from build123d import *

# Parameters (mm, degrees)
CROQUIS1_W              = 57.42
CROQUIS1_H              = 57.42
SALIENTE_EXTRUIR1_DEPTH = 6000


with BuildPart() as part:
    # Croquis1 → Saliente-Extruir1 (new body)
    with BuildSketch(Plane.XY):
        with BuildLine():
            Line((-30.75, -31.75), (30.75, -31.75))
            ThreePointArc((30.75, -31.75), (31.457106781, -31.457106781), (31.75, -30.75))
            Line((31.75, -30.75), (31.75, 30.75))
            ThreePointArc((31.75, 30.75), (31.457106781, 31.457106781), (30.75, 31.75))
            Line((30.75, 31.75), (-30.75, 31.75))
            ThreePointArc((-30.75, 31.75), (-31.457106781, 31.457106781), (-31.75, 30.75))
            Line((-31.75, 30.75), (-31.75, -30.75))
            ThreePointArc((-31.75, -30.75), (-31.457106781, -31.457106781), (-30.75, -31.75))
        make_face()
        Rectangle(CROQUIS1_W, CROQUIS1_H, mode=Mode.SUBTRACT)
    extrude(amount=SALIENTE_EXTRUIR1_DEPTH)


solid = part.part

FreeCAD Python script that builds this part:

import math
import FreeCAD as App
import Part
import Sketcher
Q = App.Units.Quantity


def add_polygon(sketch, points):
    """Adds a closed chain of lines whose ends are joined by coincident constraints."""
    first, n = sketch.GeometryCount, len(points)
    for a, b in zip(points, points[1:] + points[:1]):
        sketch.addGeometry(Part.LineSegment(App.Vector(*a, 0), App.Vector(*b, 0)), False)
    for i in range(n):
        sketch.addConstraint(Sketcher.Constraint("Coincident", first + i, 2, first + (i + 1) % n, 1))

doc = App.newDocument("Part")
body = doc.addObject("PartDesign::Body", "Body")

sketch1 = doc.addObject("Sketcher::SketchObject", "Sketch")
body.addObject(sketch1)
sketch1.AttachmentSupport = (doc.XY_Plane, [""])
sketch1.MapMode = "FlatFace"
sketch1.addGeometry(Part.LineSegment(App.Vector(-30.75, -31.75, 0), App.Vector(30.75, -31.75, 0)), False)
sketch1.addGeometry(Part.ArcOfCircle(Part.Circle(App.Vector(30.75, -30.75, 0), App.Vector(0, 0, 1), 1), math.radians(-90), math.radians(0)), False)
sketch1.addGeometry(Part.LineSegment(App.Vector(31.75, -30.75, 0), App.Vector(31.75, 30.75, 0)), False)
sketch1.addGeometry(Part.ArcOfCircle(Part.Circle(App.Vector(30.75, 30.75, 0), App.Vector(0, 0, 1), 1), math.radians(0), math.radians(90)), False)
sketch1.addGeometry(Part.LineSegment(App.Vector(30.75, 31.75, 0), App.Vector(-30.75, 31.75, 0)), False)
sketch1.addGeometry(Part.ArcOfCircle(Part.Circle(App.Vector(-30.75, 30.75, 0), App.Vector(0, 0, 1), 1), math.radians(90), math.radians(180)), False)
sketch1.addGeometry(Part.LineSegment(App.Vector(-31.75, 30.75, 0), App.Vector(-31.75, -30.75, 0)), False)
sketch1.addGeometry(Part.ArcOfCircle(Part.Circle(App.Vector(-30.75, -30.75, 0), App.Vector(0, 0, 1), 1), math.radians(-180), math.radians(-90)), False)
add_polygon(sketch1, [(28.71, -28.71), (-28.71, -28.71), (-28.71, 28.71), (28.71, 28.71)])
sketch1.addConstraint(Sketcher.Constraint("Tangent", 0, 2, 1, 1))
sketch1.addConstraint(Sketcher.Constraint("Tangent", 1, 2, 2, 1))
sketch1.addConstraint(Sketcher.Constraint("Tangent", 2, 2, 3, 1))
sketch1.addConstraint(Sketcher.Constraint("Tangent", 3, 2, 4, 1))
sketch1.addConstraint(Sketcher.Constraint("Tangent", 4, 2, 5, 1))
sketch1.addConstraint(Sketcher.Constraint("Tangent", 5, 2, 6, 1))
sketch1.addConstraint(Sketcher.Constraint("Tangent", 6, 2, 7, 1))
sketch1.addConstraint(Sketcher.Constraint("Tangent", 7, 2, 0, 1))
sketch1.addConstraint(Sketcher.Constraint("Horizontal", 0))
sketch1.addConstraint(Sketcher.Constraint("Vertical", 2))
sketch1.addConstraint(Sketcher.Constraint("Horizontal", 4))
sketch1.addConstraint(Sketcher.Constraint("Vertical", 6))
sketch1.addConstraint(Sketcher.Constraint("Horizontal", 8))
sketch1.addConstraint(Sketcher.Constraint("Vertical", 9))
sketch1.addConstraint(Sketcher.Constraint("Horizontal", 10))
sketch1.addConstraint(Sketcher.Constraint("Vertical", 11))
sketch1.addConstraint(Sketcher.Constraint("Equal", 1, 3))
sketch1.addConstraint(Sketcher.Constraint("Equal", 3, 5))
sketch1.addConstraint(Sketcher.Constraint("Equal", 5, 7))
sketch1.addConstraint(Sketcher.Constraint("Symmetric", 1, 3, 5, 3, -1, 1))
sketch1.addConstraint(Sketcher.Constraint("Symmetric", 8, 2, 10, 2, -1, 1))
sketch1.addConstraint(Sketcher.Constraint("Equal", 4, 2))
sketch1.addConstraint(Sketcher.Constraint("Equal", 10, 9))
sketch1.addConstraint(Sketcher.Constraint("Radius", 1, Q("1 mm")))
sketch1.addConstraint(Sketcher.Constraint("DistanceX", 0, 1, 0, 2, Q("61.5 mm")))
sketch1.addConstraint(Sketcher.Constraint("DistanceX", 8, 2, 8, 1, Q("57.42 mm")))
pad1 = doc.addObject("PartDesign::Pad", "Pad")
body.addObject(pad1)
pad1.Profile = sketch1
pad1.Length = 6000

doc.recompute()
